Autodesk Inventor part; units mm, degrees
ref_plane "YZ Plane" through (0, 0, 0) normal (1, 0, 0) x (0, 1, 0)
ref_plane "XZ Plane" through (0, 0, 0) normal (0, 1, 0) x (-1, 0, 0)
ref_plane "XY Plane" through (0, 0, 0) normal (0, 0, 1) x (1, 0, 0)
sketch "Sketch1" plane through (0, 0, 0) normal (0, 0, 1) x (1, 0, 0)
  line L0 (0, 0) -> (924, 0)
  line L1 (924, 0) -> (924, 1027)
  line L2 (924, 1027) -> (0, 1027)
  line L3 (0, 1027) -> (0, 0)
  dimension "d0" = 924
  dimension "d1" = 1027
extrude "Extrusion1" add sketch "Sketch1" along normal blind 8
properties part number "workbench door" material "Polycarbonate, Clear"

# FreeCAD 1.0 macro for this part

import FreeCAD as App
import Part
import Sketcher
Q = App.Units.Quantity


def add_polygon(sketch, points):
    """Adds a closed chain of lines whose ends are joined by coincident constraints."""
    first, n = sketch.GeometryCount, len(points)
    for a, b in zip(points, points[1:] + points[:1]):
        sketch.addGeometry(Part.LineSegment(App.Vector(*a, 0), App.Vector(*b, 0)), False)
    for i in range(n):
        sketch.addConstraint(Sketcher.Constraint("Coincident", first + i, 2, first + (i + 1) % n, 1))

doc = App.newDocument("Part")
body = doc.addObject("PartDesign::Body", "Body")

# Sketch on XY plane
sketch1 = doc.addObject("Sketcher::SketchObject", "Sketch")
body.addObject(sketch1)
sketch1.AttachmentSupport = (doc.XY_Plane, [""])
sketch1.MapMode = "FlatFace"
add_polygon(sketch1, [(0, 1027), (0, 0), (924, 0), (924, 1027)])  # lines 0-3
sketch1.addConstraint(Sketcher.Constraint("Vertical", 0))
sketch1.addConstraint(Sketcher.Constraint("Horizontal", 1))
sketch1.addConstraint(Sketcher.Constraint("Vertical", 2))
sketch1.addConstraint(Sketcher.Constraint("Horizontal", 3))
sketch1.addConstraint(Sketcher.Constraint("Coincident", 0, 2, -1, 1))
sketch1.addConstraint(Sketcher.Constraint("DistanceX", 1, 1, 1, 2, Q("924 mm")))
sketch1.addConstraint(Sketcher.Constraint("DistanceY", 0, 2, 0, 1, Q("1027 mm")))
pad1 = doc.addObject("PartDesign::Pad", "Pad")
body.addObject(pad1)
pad1.Profile = sketch1
pad1.Length = 8

doc.recompute()
